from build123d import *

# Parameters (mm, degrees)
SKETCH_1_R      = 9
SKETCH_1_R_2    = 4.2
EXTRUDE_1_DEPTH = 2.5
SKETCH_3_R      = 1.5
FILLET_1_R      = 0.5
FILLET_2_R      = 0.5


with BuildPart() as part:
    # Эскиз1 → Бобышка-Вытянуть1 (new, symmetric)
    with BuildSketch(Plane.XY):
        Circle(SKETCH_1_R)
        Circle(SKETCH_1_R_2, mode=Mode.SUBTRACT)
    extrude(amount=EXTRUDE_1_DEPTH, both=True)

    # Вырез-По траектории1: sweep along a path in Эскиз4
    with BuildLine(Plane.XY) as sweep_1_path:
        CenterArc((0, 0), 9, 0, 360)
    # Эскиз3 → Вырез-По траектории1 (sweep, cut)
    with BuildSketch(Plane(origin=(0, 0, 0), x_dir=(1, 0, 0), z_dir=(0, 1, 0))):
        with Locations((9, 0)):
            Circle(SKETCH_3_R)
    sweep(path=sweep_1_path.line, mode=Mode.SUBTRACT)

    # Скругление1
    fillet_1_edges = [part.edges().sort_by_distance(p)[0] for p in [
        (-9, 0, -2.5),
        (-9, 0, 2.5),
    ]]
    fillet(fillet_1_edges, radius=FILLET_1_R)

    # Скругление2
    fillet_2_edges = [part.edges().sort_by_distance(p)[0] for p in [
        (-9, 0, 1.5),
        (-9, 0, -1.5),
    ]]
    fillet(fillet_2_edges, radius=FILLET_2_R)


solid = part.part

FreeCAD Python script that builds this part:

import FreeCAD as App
import Part
import Sketcher

V = App.Vector
Q = App.Units.Quantity


def edges_at(feature, points):
    """Names of the edges that pass closest to the given points."""
    edges = feature.Shape.Edges
    near = lambda p: min(range(len(edges)), key=lambda i: edges[i].distToShape(Part.Vertex(*p))[0])
    return sorted({f"Edge{near(p) + 1}" for p in points})

doc = App.newDocument("Part")
body = doc.addObject("PartDesign::Body", "Body")

# Sketch on XY plane
sketch1 = body.newObject("Sketcher::SketchObject", "Sketch")
sketch1.AttachmentSupport = (doc.getObject("XY_Plane"), [""])
sketch1.MapMode = "FlatFace"
sketch1.addGeometry([
    Part.Circle(V(0, 0, 0), V(0, 0, 1), 9),
    Part.Circle(V(0, 0, 0), V(0, 0, 1), 4.2),
], False)
sketch1.addConstraint([
    Sketcher.Constraint("Coincident", 0, 3, -1, 1),
    Sketcher.Constraint("Coincident", 1, 3, -1, 1),
    Sketcher.Constraint("Diameter", 0, Q("18 mm")),
    Sketcher.Constraint("Diameter", 1, Q("8.4 mm")),
])
pad1 = body.newObject("PartDesign::Pad", "Pad")
pad1.Profile = sketch1
pad1.Length = 5
pad1.Midplane = True

# Sketch on XZ plane
sketch2 = body.newObject("Sketcher::SketchObject", "Sketch001")
sketch2.AttachmentSupport = (doc.getObject("XZ_Plane"), [""])
sketch2.MapMode = "FlatFace"
sketch2.addGeometry(Part.Circle(V(9, 0, 0), V(0, 0, 1), 1.5), False)
sketch2.addConstraint([
    Sketcher.Constraint("PointOnObject", 0, 3, -1),
    Sketcher.Constraint("Diameter", 0, Q("3 mm")),
    Sketcher.Constraint("DistanceX", -1, 1, 0, 3, Q("9 mm")),
])

# Sketch on XY plane
sketch3 = body.newObject("Sketcher::SketchObject", "Sketch002")
sketch3.AttachmentSupport = (doc.getObject("XY_Plane"), [""])
sketch3.MapMode = "FlatFace"
sketch3.addGeometry(Part.Circle(V(0, 0, 0), V(0, 0, 1), 9), False)
sketch3.addConstraint([
    Sketcher.Constraint("Coincident", 0, 3, -1, 1),
    Sketcher.Constraint("Diameter", 0, Q("18 mm")),
])
doc.recompute()

subtractivepipe = body.newObject("PartDesign::SubtractivePipe", "SubtractivePipe")
subtractivepipe.Profile = sketch2
subtractivepipe.Spine = (sketch3, ["Edge1"])
doc.recompute()

fillet = body.newObject("PartDesign::Fillet", "Fillet")
fillet.Base = (subtractivepipe, edges_at(subtractivepipe, [(-9, 0, -2.5), (-9, 0, 2.5)]))
fillet.Radius = 0.5
doc.recompute()

fillet2 = body.newObject("PartDesign::Fillet", "Fillet001")
fillet2.Base = (fillet, edges_at(fillet, [(-9, 0, 1.5), (-9, 0, -1.5)]))
fillet2.Radius = 0.5

doc.recompute()
